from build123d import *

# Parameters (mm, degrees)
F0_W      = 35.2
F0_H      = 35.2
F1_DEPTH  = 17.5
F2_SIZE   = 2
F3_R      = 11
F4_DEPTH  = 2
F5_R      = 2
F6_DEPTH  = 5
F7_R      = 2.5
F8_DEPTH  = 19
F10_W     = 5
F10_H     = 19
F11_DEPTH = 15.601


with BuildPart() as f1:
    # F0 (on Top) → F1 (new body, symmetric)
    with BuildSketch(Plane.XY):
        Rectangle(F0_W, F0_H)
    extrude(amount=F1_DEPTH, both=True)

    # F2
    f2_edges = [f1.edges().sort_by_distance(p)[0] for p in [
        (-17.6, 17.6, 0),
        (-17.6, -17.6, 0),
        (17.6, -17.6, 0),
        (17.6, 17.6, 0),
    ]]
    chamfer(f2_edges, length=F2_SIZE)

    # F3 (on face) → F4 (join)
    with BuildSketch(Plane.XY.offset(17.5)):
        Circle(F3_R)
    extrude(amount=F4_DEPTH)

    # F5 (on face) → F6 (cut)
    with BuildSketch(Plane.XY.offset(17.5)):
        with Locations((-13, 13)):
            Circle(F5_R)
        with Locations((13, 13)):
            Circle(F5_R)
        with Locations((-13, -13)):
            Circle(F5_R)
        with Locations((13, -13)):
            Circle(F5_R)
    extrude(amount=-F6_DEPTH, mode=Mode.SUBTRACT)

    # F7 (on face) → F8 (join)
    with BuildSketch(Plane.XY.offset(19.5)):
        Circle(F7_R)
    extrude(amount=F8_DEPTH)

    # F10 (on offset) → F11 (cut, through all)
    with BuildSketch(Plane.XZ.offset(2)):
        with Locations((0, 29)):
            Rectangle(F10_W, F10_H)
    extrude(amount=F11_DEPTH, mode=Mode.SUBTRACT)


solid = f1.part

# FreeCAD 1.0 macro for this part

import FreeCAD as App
import Part
import Sketcher

V = App.Vector


def edges_at(feature, points):
    """Names of the edges that pass closest to the given points."""
    edges = feature.Shape.Edges
    near = lambda p: min(range(len(edges)), key=lambda i: edges[i].distToShape(Part.Vertex(*p))[0])
    return sorted({f"Edge{near(p) + 1}" for p in points})


def add_polygon(sketch, points):
    """Adds a closed chain of lines whose ends are joined by coincident constraints."""
    first, n = sketch.GeometryCount, len(points)
    for a, b in zip(points, points[1:] + points[:1]):
        sketch.addGeometry(Part.LineSegment(App.Vector(*a, 0), App.Vector(*b, 0)), False)
    for i in range(n):
        sketch.addConstraint(Sketcher.Constraint("Coincident", first + i, 2, first + (i + 1) % n, 1))

doc = App.newDocument("Part")
body = doc.addObject("PartDesign::Body", "Body")

sketch1 = body.newObject("Sketcher::SketchObject", "Sketch")
sketch1.AttachmentSupport = (doc.getObject("XY_Plane"), [""])
sketch1.MapMode = "FlatFace"
add_polygon(sketch1, [(-17.6, 17.6), (-17.6, -17.6), (17.6, -17.6), (17.6, 17.6)])
sketch1.addConstraint(Sketcher.Constraint("Vertical", 0))
sketch1.addConstraint(Sketcher.Constraint("Horizontal", 1))
sketch1.addConstraint(Sketcher.Constraint("Vertical", 2))
sketch1.addConstraint(Sketcher.Constraint("Horizontal", 3))
sketch1.addConstraint(Sketcher.Constraint("Symmetric", 0, 2, 2, 2, -1, 1))
sketch1.addConstraint(Sketcher.Constraint("Equal", 3, 0))
sketch1.addConstraint(Sketcher.Constraint("DistanceX", 1, 1, 1, 2, 35.2))
pad1 = body.newObject("PartDesign::Pad", "Pad")
pad1.Profile = sketch1
pad1.Length = 35
pad1.Midplane = True
doc.recompute()

chamfer = body.newObject("PartDesign::Chamfer", "Chamfer")
chamfer.Base = (pad1, edges_at(pad1, [
    (-17.6, 17.6, 0),
    (-17.6, -17.6, 0),
    (17.6, -17.6, 0),
    (17.6, 17.6, 0),
]))
chamfer.Size = 2

sketch2 = body.newObject("Sketcher::SketchObject", "Sketch001")
sketch2.AttachmentSupport = (doc.getObject("XY_Plane"), [""])
sketch2.MapMode = "FlatFace"
sketch2.AttachmentOffset = App.Placement(V(0, 0, 17.5), App.Rotation())
sketch2.addGeometry(Part.Circle(V(0, 0, 0), V(0, 0, 1), 11), False)
sketch2.addConstraint(Sketcher.Constraint("Coincident", 0, 3, -1, 1))
sketch2.addConstraint(Sketcher.Constraint("Diameter", 0, 22.0))
pad2 = body.newObject("PartDesign::Pad", "Pad001")
pad2.Profile = sketch2
pad2.Length = 2

sketch3 = body.newObject("Sketcher::SketchObject", "Sketch002")
sketch3.AttachmentSupport = (doc.getObject("XY_Plane"), [""])
sketch3.MapMode = "FlatFace"
sketch3.AttachmentOffset = App.Placement(V(0, 0, 17.5), App.Rotation())
sketch3.addGeometry(Part.Circle(V(-13, 13, 0), V(0, 0, 1), 2), False)
sketch3.addGeometry(Part.Circle(V(13, 13, 0), V(0, 0, 1), 2), False)
sketch3.addGeometry(Part.Circle(V(-13, -13, 0), V(0, 0, 1), 2), False)
sketch3.addGeometry(Part.Circle(V(13, -13, 0), V(0, 0, 1), 2), False)
sketch3.addConstraint(Sketcher.Constraint("Equal", 0, 1))
sketch3.addConstraint(Sketcher.Constraint("Equal", 1, 2))
sketch3.addConstraint(Sketcher.Constraint("Equal", 2, 3))
sketch3.addConstraint(Sketcher.Constraint("Symmetric", 1, 3, 2, 3, -1, 1))
sketch3.addConstraint(Sketcher.Constraint("Symmetric", 0, 3, 3, 3, -1, 1))
sketch3.addConstraint(Sketcher.Constraint("Symmetric", 0, 3, 1, 3, -2))
sketch3.addConstraint(Sketcher.Constraint("Diameter", 0, 4.0))
sketch3.addConstraint(Sketcher.Constraint("DistanceX", 0, 3, -1, 1, 13.0))
sketch3.addConstraint(Sketcher.Constraint("DistanceY", -1, 1, 0, 3, 13.0))
pocket1 = body.newObject("PartDesign::Pocket", "Pocket")
pocket1.Profile = sketch3
pocket1.Length = 5

sketch4 = body.newObject("Sketcher::SketchObject", "Sketch003")
sketch4.AttachmentSupport = (doc.getObject("XY_Plane"), [""])
sketch4.MapMode = "FlatFace"
sketch4.AttachmentOffset = App.Placement(V(0, 0, 19.5), App.Rotation())
sketch4.addGeometry(Part.Circle(V(0, 0, 0), V(0, 0, 1), 2.5), False)
sketch4.addConstraint(Sketcher.Constraint("Coincident", 0, 3, -1, 1))
sketch4.addConstraint(Sketcher.Constraint("Diameter", 0, 5.0))
pad3 = body.newObject("PartDesign::Pad", "Pad002")
pad3.Profile = sketch4
pad3.Length = 19

sketch5 = body.newObject("Sketcher::SketchObject", "Sketch004")
sketch5.AttachmentSupport = (doc.getObject("XZ_Plane"), [""])
sketch5.MapMode = "FlatFace"
sketch5.AttachmentOffset = App.Placement(V(0, 0, 2), App.Rotation())
add_polygon(sketch5, [(-2.5, 38.5), (-2.5, 19.5), (2.5, 19.5), (2.5, 38.5)])
sketch5.addConstraint(Sketcher.Constraint("Vertical", 0))
sketch5.addConstraint(Sketcher.Constraint("Horizontal", 1))
sketch5.addConstraint(Sketcher.Constraint("Vertical", 2))
sketch5.addConstraint(Sketcher.Constraint("Horizontal", 3))
sketch5.addConstraint(Sketcher.Constraint("DistanceX", 1, 1, 1, 2, 5.0))
sketch5.addConstraint(Sketcher.Constraint("DistanceY", 0, 2, 0, 1, 19.0))
sketch5.addConstraint(Sketcher.Constraint("DistanceX", 0, 2, -1, 1, 2.5))
sketch5.addConstraint(Sketcher.Constraint("DistanceY", -1, 1, 0, 2, 19.5))
pocket2 = body.newObject("PartDesign::Pocket", "Pocket001")
pocket2.Profile = sketch5
pocket2.Type = "ThroughAll"
pocket2.Reversed = True

doc.recompute()
